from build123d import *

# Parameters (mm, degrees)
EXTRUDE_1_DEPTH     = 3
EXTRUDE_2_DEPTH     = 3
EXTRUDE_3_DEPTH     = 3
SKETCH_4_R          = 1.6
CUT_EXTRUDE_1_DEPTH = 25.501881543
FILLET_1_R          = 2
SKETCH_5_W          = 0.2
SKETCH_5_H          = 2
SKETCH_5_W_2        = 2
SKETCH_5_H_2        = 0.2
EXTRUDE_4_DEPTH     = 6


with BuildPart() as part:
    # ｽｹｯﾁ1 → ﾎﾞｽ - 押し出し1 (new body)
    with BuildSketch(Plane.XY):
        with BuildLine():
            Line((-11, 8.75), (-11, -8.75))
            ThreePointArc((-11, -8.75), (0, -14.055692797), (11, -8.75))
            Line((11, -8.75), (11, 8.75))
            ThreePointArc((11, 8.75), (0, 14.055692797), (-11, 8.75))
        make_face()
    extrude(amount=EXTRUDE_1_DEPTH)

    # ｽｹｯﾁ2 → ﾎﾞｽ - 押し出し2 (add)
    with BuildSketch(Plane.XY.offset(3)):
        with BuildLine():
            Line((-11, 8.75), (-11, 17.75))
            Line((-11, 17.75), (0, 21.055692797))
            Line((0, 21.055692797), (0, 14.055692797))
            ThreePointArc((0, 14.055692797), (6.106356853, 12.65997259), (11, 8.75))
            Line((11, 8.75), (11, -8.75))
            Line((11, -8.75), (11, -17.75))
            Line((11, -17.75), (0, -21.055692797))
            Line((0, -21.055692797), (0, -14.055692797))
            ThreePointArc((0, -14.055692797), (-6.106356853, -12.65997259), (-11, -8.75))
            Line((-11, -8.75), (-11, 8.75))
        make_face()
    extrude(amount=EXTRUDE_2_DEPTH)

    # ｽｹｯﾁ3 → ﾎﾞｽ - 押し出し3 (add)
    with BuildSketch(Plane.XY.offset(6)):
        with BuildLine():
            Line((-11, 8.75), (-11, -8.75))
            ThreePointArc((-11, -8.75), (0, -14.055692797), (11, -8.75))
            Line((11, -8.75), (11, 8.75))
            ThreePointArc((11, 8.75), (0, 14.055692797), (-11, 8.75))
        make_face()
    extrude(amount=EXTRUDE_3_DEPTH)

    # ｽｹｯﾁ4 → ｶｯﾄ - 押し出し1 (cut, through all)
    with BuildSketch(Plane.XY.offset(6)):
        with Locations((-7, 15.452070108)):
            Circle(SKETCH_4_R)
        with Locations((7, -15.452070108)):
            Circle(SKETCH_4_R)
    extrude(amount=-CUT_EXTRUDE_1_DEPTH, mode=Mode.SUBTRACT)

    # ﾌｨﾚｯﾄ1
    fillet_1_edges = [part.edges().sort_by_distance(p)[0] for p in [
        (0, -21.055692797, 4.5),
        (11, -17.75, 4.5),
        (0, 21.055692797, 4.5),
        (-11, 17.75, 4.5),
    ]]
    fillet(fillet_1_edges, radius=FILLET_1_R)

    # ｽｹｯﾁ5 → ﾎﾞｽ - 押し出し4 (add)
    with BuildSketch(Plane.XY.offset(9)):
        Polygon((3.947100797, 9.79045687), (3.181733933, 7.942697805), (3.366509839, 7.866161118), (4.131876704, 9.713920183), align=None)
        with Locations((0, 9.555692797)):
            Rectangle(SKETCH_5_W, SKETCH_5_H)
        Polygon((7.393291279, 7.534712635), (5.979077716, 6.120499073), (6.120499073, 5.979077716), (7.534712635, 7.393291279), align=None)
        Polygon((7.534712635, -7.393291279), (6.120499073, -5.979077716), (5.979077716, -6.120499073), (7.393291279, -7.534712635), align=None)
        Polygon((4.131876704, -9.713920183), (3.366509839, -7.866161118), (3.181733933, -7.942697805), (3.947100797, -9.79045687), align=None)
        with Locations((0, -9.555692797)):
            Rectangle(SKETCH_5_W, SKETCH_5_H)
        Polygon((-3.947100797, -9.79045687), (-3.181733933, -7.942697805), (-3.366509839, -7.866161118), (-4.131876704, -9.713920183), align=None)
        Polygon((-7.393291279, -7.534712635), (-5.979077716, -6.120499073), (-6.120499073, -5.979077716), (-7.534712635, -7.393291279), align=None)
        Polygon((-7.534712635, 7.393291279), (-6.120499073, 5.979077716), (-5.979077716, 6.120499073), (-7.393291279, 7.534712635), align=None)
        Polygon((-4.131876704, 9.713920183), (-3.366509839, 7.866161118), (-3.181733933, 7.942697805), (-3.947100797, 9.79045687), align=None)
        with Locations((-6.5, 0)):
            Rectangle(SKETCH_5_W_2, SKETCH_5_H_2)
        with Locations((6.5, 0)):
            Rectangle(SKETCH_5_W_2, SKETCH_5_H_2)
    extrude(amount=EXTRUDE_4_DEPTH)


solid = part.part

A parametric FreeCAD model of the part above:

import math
import FreeCAD as App
import Part
import Sketcher
Q = App.Units.Quantity


def edges_at(feature, points):
    """Names of the edges that pass closest to the given points."""
    edges = feature.Shape.Edges
    near = lambda p: min(range(len(edges)), key=lambda i: edges[i].distToShape(Part.Vertex(*p))[0])
    return sorted({f"Edge{near(p) + 1}" for p in points})


def add_polygon(sketch, points):
    """Adds a closed chain of lines whose ends are joined by coincident constraints."""
    first, n = sketch.GeometryCount, len(points)
    for a, b in zip(points, points[1:] + points[:1]):
        sketch.addGeometry(Part.LineSegment(App.Vector(*a, 0), App.Vector(*b, 0)), False)
    for i in range(n):
        sketch.addConstraint(Sketcher.Constraint("Coincident", first + i, 2, first + (i + 1) % n, 1))

doc = App.newDocument("Part")
body = doc.addObject("PartDesign::Body", "Body")

sketch1 = doc.addObject("Sketcher::SketchObject", "Sketch")
body.addObject(sketch1)
sketch1.AttachmentSupport = (doc.XY_Plane, [""])
sketch1.MapMode = "FlatFace"
sketch1.addGeometry([
    Part.LineSegment(App.Vector(-11, 8.75, 0), App.Vector(-11, -8.75, 0)),
    Part.ArcOfCircle(Part.Circle(App.Vector(0, 0, 0), App.Vector(0, 0, 1), 14.055693), math.radians(-141.499346), math.radians(-38.500654)),
    Part.LineSegment(App.Vector(11, -8.75, 0), App.Vector(11, 8.75, 0)),
    Part.ArcOfCircle(Part.Circle(App.Vector(0, 0, 0), App.Vector(0, 0, 1), 14.055693), math.radians(38.500654), math.radians(141.499346)),
], False)
sketch1.addConstraint([
    Sketcher.Constraint("Coincident", 0, 2, 1, 1),
    Sketcher.Constraint("Coincident", 1, 2, 2, 1),
    Sketcher.Constraint("Coincident", 2, 2, 3, 1),
    Sketcher.Constraint("Coincident", 3, 2, 0, 1),
    Sketcher.Constraint("Vertical", 0),
    Sketcher.Constraint("Vertical", 2),
    Sketcher.Constraint("Coincident", 1, 3, -1, 1),
    Sketcher.Constraint("Coincident", 3, 3, -1, 1),
    Sketcher.Constraint("Equal", 1, 3),
    Sketcher.Constraint("Horizontal", 0, 2, 1, 2),
    Sketcher.Constraint("DistanceY", 0, 2, 0, 1, Q("17.5 mm")),
    Sketcher.Constraint("DistanceX", 0, 2, -1, 1, Q("11 mm")),
])
pad1 = doc.addObject("PartDesign::Pad", "Pad")
body.addObject(pad1)
pad1.Profile = sketch1
pad1.Length = 3

sketch2 = doc.addObject("Sketcher::SketchObject", "Sketch001")
body.addObject(sketch2)
sketch2.AttachmentSupport = (doc.XY_Plane, [""])
sketch2.MapMode = "FlatFace"
sketch2.AttachmentOffset = App.Placement(App.Vector(0, 0, 3), App.Rotation())
sketch2.addGeometry([
    Part.LineSegment(App.Vector(0, 21.055693, 0), App.Vector(-11, 17.75, 0)),
    Part.LineSegment(App.Vector(-11, 17.75, 0), App.Vector(-11, -8.75, 0)),
    Part.ArcOfCircle(Part.Circle(App.Vector(0, 0, 0), App.Vector(0, 0, 1), 14.055693), math.radians(-141.499346), math.radians(-90)),
    Part.LineSegment(App.Vector(0, -14.055693, 0), App.Vector(0, -21.055693, 0)),
    Part.LineSegment(App.Vector(0, -21.055693, 0), App.Vector(11, -17.75, 0)),
    Part.LineSegment(App.Vector(11, -17.75, 0), App.Vector(11, 8.75, 0)),
    Part.ArcOfCircle(Part.Circle(App.Vector(0, 0, 0), App.Vector(0, 0, 1), 14.055693), math.radians(38.500654), math.radians(90)),
    Part.LineSegment(App.Vector(0, 14.055693, 0), App.Vector(0, 21.055693, 0)),
], False)
sketch2.addConstraint([
    Sketcher.Constraint("Coincident", 0, 2, 1, 1),
    Sketcher.Constraint("Coincident", 1, 2, 2, 1),
    Sketcher.Constraint("Coincident", 2, 2, 3, 1),
    Sketcher.Constraint("Coincident", 3, 2, 4, 1),
    Sketcher.Constraint("Coincident", 4, 2, 5, 1),
    Sketcher.Constraint("Coincident", 5, 2, 6, 1),
    Sketcher.Constraint("Coincident", 6, 2, 7, 1),
    Sketcher.Constraint("Coincident", 7, 2, 0, 1),
    Sketcher.Constraint("Vertical", 1),
    Sketcher.Constraint("Vertical", 3),
    Sketcher.Constraint("Vertical", 5),
    Sketcher.Constraint("Vertical", 7),
    Sketcher.Constraint("Coincident", 2, 3, -1, 1),
    Sketcher.Constraint("Coincident", 6, 3, -1, 1),
    Sketcher.Constraint("Equal", 2, 6),
    Sketcher.Constraint("Symmetric", 0, 2, 4, 2, -1, 1),
    Sketcher.Constraint("Symmetric", 3, 2, 7, 2, -1, 1),
    Sketcher.Constraint("PointOnObject", 2, 2, -2),
    Sketcher.Constraint("DistanceY", 3, 2, 3, 1, Q("7 mm")),
    Sketcher.Constraint("DistanceY", 1, 2, 1, 1, Q("26.5 mm")),
    Sketcher.Constraint("DistanceX", 0, 2, -1, 1, Q("11 mm")),
    Sketcher.Constraint("DistanceY", 4, 2, 1, 2, Q("9 mm")),
])
pad2 = doc.addObject("PartDesign::Pad", "Pad001")
body.addObject(pad2)
pad2.Profile = sketch2
pad2.Length = 3

sketch3 = doc.addObject("Sketcher::SketchObject", "Sketch002")
body.addObject(sketch3)
sketch3.AttachmentSupport = (doc.XY_Plane, [""])
sketch3.MapMode = "FlatFace"
sketch3.AttachmentOffset = App.Placement(App.Vector(0, 0, 6), App.Rotation())
sketch3.addGeometry([
    Part.LineSegment(App.Vector(-11, 8.75, 0), App.Vector(-11, -8.75, 0)),
    Part.ArcOfCircle(Part.Circle(App.Vector(0, 0, 0), App.Vector(0, 0, 1), 14.055693), math.radians(-141.499346), math.radians(-38.500654)),
    Part.LineSegment(App.Vector(11, -8.75, 0), App.Vector(11, 8.75, 0)),
    Part.ArcOfCircle(Part.Circle(App.Vector(0, 0, 0), App.Vector(0, 0, 1), 14.055693), math.radians(38.500654), math.radians(141.499346)),
], False)
sketch3.addConstraint([
    Sketcher.Constraint("Coincident", 0, 2, 1, 1),
    Sketcher.Constraint("Coincident", 1, 2, 2, 1),
    Sketcher.Constraint("Coincident", 2, 2, 3, 1),
    Sketcher.Constraint("Coincident", 3, 2, 0, 1),
    Sketcher.Constraint("Vertical", 0),
    Sketcher.Constraint("Vertical", 2),
    Sketcher.Constraint("Coincident", 1, 3, -1, 1),
    Sketcher.Constraint("Coincident", 3, 3, -1, 1),
    Sketcher.Constraint("Equal", 1, 3),
    Sketcher.Constraint("Horizontal", 0, 2, 1, 2),
    Sketcher.Constraint("DistanceY", 0, 2, 0, 1, Q("17.5 mm")),
    Sketcher.Constraint("DistanceX", 0, 2, -1, 1, Q("11 mm")),
])
pad3 = doc.addObject("PartDesign::Pad", "Pad002")
body.addObject(pad3)
pad3.Profile = sketch3
pad3.Length = 3

sketch4 = doc.addObject("Sketcher::SketchObject", "Sketch003")
body.addObject(sketch4)
sketch4.AttachmentSupport = (doc.XY_Plane, [""])
sketch4.MapMode = "FlatFace"
sketch4.AttachmentOffset = App.Placement(App.Vector(0, 0, 6), App.Rotation())
sketch4.addGeometry([
    Part.Circle(App.Vector(-7, 15.45207, 0), App.Vector(0, 0, 1), 1.6),
    Part.Circle(App.Vector(7, -15.45207, 0), App.Vector(0, 0, 1), 1.6),
], False)
sketch4.addConstraint([
    Sketcher.Constraint("Equal", 0, 1),
    Sketcher.Constraint("Symmetric", 0, 3, 1, 3, -1, 1),
    Sketcher.Constraint("Diameter", 0, Q("3.2 mm")),
    Sketcher.Constraint("DistanceX", 0, 3, -1, 1, Q("7 mm")),
    Sketcher.Constraint("DistanceY", -1, 1, 0, 3, Q("15.45207 mm")),
])
pocket1 = doc.addObject("PartDesign::Pocket", "Pocket")
body.addObject(pocket1)
pocket1.Profile = sketch4
pocket1.Type = "ThroughAll"
doc.recompute()

fillet = doc.addObject("PartDesign::Fillet", "Fillet")
body.addObject(fillet)
fillet.Base = (pocket1, edges_at(pocket1, [
    (0, -21.056, 4.5),
    (11, -17.75, 4.5),
    (0, 21.056, 4.5),
    (-11, 17.75, 4.5),
]))
fillet.Radius = 2

sketch5 = doc.addObject("Sketcher::SketchObject", "Sketch004")
body.addObject(sketch5)
sketch5.AttachmentSupport = (doc.XY_Plane, [""])
sketch5.MapMode = "FlatFace"
sketch5.AttachmentOffset = App.Placement(App.Vector(0, 0, 9), App.Rotation())
add_polygon(sketch5, [(3.947101, 9.790457), (3.181734, 7.942698), (3.36651, 7.866161), (4.131877, 9.71392)])
add_polygon(sketch5, [(-0.1, 10.555693), (-0.1, 8.555693), (0.1, 8.555693), (0.1, 10.555693)])
add_polygon(sketch5, [(7.393291, 7.534713), (5.979078, 6.120499), (6.120499, 5.979078), (7.534713, 7.393291)])
add_polygon(sketch5, [(7.534713, -7.393291), (6.120499, -5.979078), (5.979078, -6.120499), (7.393291, -7.534713)])
add_polygon(sketch5, [(4.131877, -9.71392), (3.36651, -7.866161), (3.181734, -7.942698), (3.947101, -9.790457)])
add_polygon(sketch5, [(-0.1, -8.555693), (-0.1, -10.555693), (0.1, -10.555693), (0.1, -8.555693)])
add_polygon(sketch5, [(-3.947101, -9.790457), (-3.181734, -7.942698), (-3.36651, -7.866161), (-4.131877, -9.71392)])
add_polygon(sketch5, [(-7.393291, -7.534713), (-5.979078, -6.120499), (-6.120499, -5.979078), (-7.534713, -7.393291)])
add_polygon(sketch5, [(-7.534713, 7.393291), (-6.120499, 5.979078), (-5.979078, 6.120499), (-7.393291, 7.534713)])
add_polygon(sketch5, [(-4.131877, 9.71392), (-3.36651, 7.866161), (-3.181734, 7.942698), (-3.947101, 9.790457)])
add_polygon(sketch5, [(-7.5, 0.1), (-7.5, -0.1), (-5.5, -0.1), (-5.5, 0.1)])
add_polygon(sketch5, [(5.5, 0.1), (5.5, -0.1), (7.5, -0.1), (7.5, 0.1)])
sketch5.addConstraint([
    Sketcher.Constraint("Vertical", 4),
    Sketcher.Constraint("Horizontal", 5),
    Sketcher.Constraint("Vertical", 6),
    Sketcher.Constraint("Horizontal", 7),
    Sketcher.Constraint("Vertical", 20),
    Sketcher.Constraint("Horizontal", 21),
    Sketcher.Constraint("Vertical", 22),
    Sketcher.Constraint("Horizontal", 23),
    Sketcher.Constraint("Vertical", 40),
    Sketcher.Constraint("Horizontal", 41),
    Sketcher.Constraint("Vertical", 42),
    Sketcher.Constraint("Horizontal", 43),
    Sketcher.Constraint("Vertical", 44),
    Sketcher.Constraint("Horizontal", 45),
    Sketcher.Constraint("Vertical", 46),
    Sketcher.Constraint("Horizontal", 47),
    Sketcher.Constraint("Symmetric", 6, 2, 20, 2, -1, 1),
    Sketcher.Constraint("Symmetric", 4, 2, 22, 2, -1, 1),
    Sketcher.Constraint("Symmetric", 0, 2, 24, 2, -1, 1),
    Sketcher.Constraint("Symmetric", 1, 2, 25, 2, -1, 1),
    Sketcher.Constraint("Symmetric", 2, 2, 26, 2, -1, 1),
    Sketcher.Constraint("Symmetric", 3, 2, 27, 2, -1, 1),
    Sketcher.Constraint("Symmetric", 8, 2, 28, 2, -1, 1),
    Sketcher.Constraint("Symmetric", 9, 2, 29, 2, -1, 1),
    Sketcher.Constraint("Symmetric", 10, 2, 30, 2, -1, 1),
    Sketcher.Constraint("Symmetric", 11, 2, 31, 2, -1, 1),
    Sketcher.Constraint("Symmetric", 12, 2, 32, 2, -1, 1),
    Sketcher.Constraint("Symmetric", 13, 2, 33, 2, -1, 1),
    Sketcher.Constraint("Symmetric", 14, 2, 34, 2, -1, 1),
    Sketcher.Constraint("Symmetric", 15, 2, 35, 2, -1, 1),
    Sketcher.Constraint("Symmetric", 16, 2, 36, 2, -1, 1),
    Sketcher.Constraint("Symmetric", 17, 2, 37, 2, -1, 1),
    Sketcher.Constraint("Symmetric", 18, 2, 38, 2, -1, 1),
    Sketcher.Constraint("Symmetric", 19, 2, 39, 2, -1, 1),
    Sketcher.Constraint("Symmetric", 42, 2, 44, 2, -1, 1),
    Sketcher.Constraint("Symmetric", 40, 2, 46, 2, -1, 1),
    Sketcher.Constraint("Symmetric", 17, 2, 24, 2, -2),
    Sketcher.Constraint("Symmetric", 16, 2, 25, 2, -2),
    Sketcher.Constraint("Symmetric", 19, 2, 26, 2, -2),
    Sketcher.Constraint("Symmetric", 18, 2, 27, 2, -2),
    Sketcher.Constraint("Symmetric", 13, 2, 28, 2, -2),
    Sketcher.Constraint("Symmetric", 12, 2, 29, 2, -2),
    Sketcher.Constraint("Symmetric", 15, 2, 30, 2, -2),
    Sketcher.Constraint("Symmetric", 14, 2, 31, 2, -2),
    Sketcher.Constraint("Perpendicular", 0, 1),
    Sketcher.Constraint("Perpendicular", 1, 2),
    Sketcher.Constraint("Perpendicular", 2, 3),
    Sketcher.Constraint("Perpendicular", 8, 9),
    Sketcher.Constraint("Perpendicular", 9, 10),
    Sketcher.Constraint("Perpendicular", 10, 11),
    Sketcher.Constraint("Parallel", 11, 12),
    Sketcher.Constraint("Horizontal", 41, 2, 44, 2),
    Sketcher.Constraint("Vertical", 7, 2, 20, 2),
    Sketcher.Constraint("Equal", 47, 4),
    Sketcher.Constraint("Equal", 23, 40),
    Sketcher.Constraint("Equal", 2, 8),
    Sketcher.Constraint("Equal", 3, 9),
    Sketcher.Constraint("DistanceX", 41, 1, 41, 2, Q("2 mm")),
    Sketcher.Constraint("Distance", 0, Q("2 mm")),
    Sketcher.Constraint("DistanceX", 5, 1, 5, 2, Q("0.2 mm")),
    Sketcher.Constraint("Angle", 0, Q("-112.5 deg")),
    Sketcher.Constraint("Distance", 1, Q("0.2 mm")),
    Sketcher.Constraint("DistanceX", 40, 2, -1, 1, Q("7.5 mm")),
    Sketcher.Constraint("DistanceY", 13, 2, 8, 2, Q("12.240998 mm")),
    Sketcher.Constraint("DistanceX", -1, 1, 3, 2, Q("3.947101 mm")),
    Sketcher.Constraint("DistanceX", -1, 1, 9, 2, Q("6.120499 mm")),
    Sketcher.Constraint("DistanceY", 8, 2, 0, 2, Q("1.822199 mm")),
    Sketcher.Constraint("DistanceY", 35, 2, 4, 2, Q("1.162402 mm")),
])
pad4 = doc.addObject("PartDesign::Pad", "Pad003")
body.addObject(pad4)
pad4.Profile = sketch5
pad4.Length = 6

doc.recompute()
